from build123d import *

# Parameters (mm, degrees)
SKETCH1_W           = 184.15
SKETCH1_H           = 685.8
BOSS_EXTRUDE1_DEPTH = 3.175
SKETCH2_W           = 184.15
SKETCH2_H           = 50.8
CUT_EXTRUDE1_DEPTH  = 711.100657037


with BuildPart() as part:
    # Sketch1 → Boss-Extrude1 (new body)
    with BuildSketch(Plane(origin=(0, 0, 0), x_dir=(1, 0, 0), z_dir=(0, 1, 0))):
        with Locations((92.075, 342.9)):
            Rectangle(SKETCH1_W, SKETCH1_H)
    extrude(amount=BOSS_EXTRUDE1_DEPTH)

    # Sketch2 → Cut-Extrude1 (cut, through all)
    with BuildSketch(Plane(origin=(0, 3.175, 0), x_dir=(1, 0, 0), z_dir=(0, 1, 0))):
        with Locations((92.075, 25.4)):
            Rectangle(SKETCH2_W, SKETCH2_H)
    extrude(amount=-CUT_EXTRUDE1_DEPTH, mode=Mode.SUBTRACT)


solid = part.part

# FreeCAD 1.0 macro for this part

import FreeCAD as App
import Part
import Sketcher
Q = App.Units.Quantity


def add_polygon(sketch, points):
    """Adds a closed chain of lines whose ends are joined by coincident constraints."""
    first, n = sketch.GeometryCount, len(points)
    for a, b in zip(points, points[1:] + points[:1]):
        sketch.addGeometry(Part.LineSegment(App.Vector(*a, 0), App.Vector(*b, 0)), False)
    for i in range(n):
        sketch.addConstraint(Sketcher.Constraint("Coincident", first + i, 2, first + (i + 1) % n, 1))

doc = App.newDocument("Part")
params = doc.addObject("Spreadsheet::Sheet", "Params")
for row, (alias, value) in enumerate([
    ("sketch1_height", "27 in"),
    ("sketch1_width", "7.25 in"),
    ("pad1_length", "0.125 in"),
    ("sketch2_height", "2 in"),
    ("sketch2_width", "7.25 in"),
], start=1):
    params.set(f"A{row}", alias)
    params.set(f"B{row}", "=" + value)
    params.setAlias(f"B{row}", alias)

body = doc.addObject("PartDesign::Body", "Body")

# Sketch on XZ plane
sketch1 = doc.addObject("Sketcher::SketchObject", "Sketch")
body.addObject(sketch1)
sketch1.AttachmentSupport = (doc.XZ_Plane, [""])
sketch1.MapMode = "FlatFace"
add_polygon(sketch1, [(0, -686), (0, 0), (184, 0), (184, -686)])  # lines 0-3
sketch1.addConstraint([
    Sketcher.Constraint("Vertical", 0),
    Sketcher.Constraint("Horizontal", 1),
    Sketcher.Constraint("Vertical", 2),
    Sketcher.Constraint("Horizontal", 3),
    Sketcher.Constraint("Coincident", 0, 2, -1, 1),
    Sketcher.Constraint("DistanceY", 0, 1, 0, 2, Q("27 in")),
    Sketcher.Constraint("DistanceX", 1, 1, 1, 2, Q("7.25 in")),
])
sketch1.setExpression("Constraints[9]", "Params.sketch1_height")
sketch1.setExpression("Constraints[10]", "Params.sketch1_width")
pad1 = doc.addObject("PartDesign::Pad", "Pad")
body.addObject(pad1)
pad1.Profile = sketch1
pad1.setExpression("Length", "Params.pad1_length")
pad1.Reversed = True

# Sketch on XZ plane
sketch2 = doc.addObject("Sketcher::SketchObject", "Sketch001")
body.addObject(sketch2)
sketch2.AttachmentSupport = (doc.XZ_Plane, [""])
sketch2.MapMode = "FlatFace"
sketch2.AttachmentOffset = App.Placement(App.Vector(0, 0, -0.125 * 25.4), App.Rotation())
add_polygon(sketch2, [(0, -51), (0, 0), (184, 0), (184, -51)])  # lines 0-3
sketch2.addConstraint([
    Sketcher.Constraint("Vertical", 0),
    Sketcher.Constraint("Horizontal", 1),
    Sketcher.Constraint("Vertical", 2),
    Sketcher.Constraint("Horizontal", 3),
    Sketcher.Constraint("Coincident", 0, 2, -1, 1),
    Sketcher.Constraint("DistanceY", 0, 1, 0, 2, Q("2 in")),
    Sketcher.Constraint("DistanceX", 1, 1, 1, 2, Q("7.25 in")),
])
sketch2.setExpression("Constraints[9]", "Params.sketch2_height")
sketch2.setExpression("Constraints[10]", "Params.sketch2_width")
pocket1 = doc.addObject("PartDesign::Pocket", "Pocket")
body.addObject(pocket1)
pocket1.Profile = sketch2
pocket1.Type = "ThroughAll"
pocket1.Reversed = True

doc.recompute()
